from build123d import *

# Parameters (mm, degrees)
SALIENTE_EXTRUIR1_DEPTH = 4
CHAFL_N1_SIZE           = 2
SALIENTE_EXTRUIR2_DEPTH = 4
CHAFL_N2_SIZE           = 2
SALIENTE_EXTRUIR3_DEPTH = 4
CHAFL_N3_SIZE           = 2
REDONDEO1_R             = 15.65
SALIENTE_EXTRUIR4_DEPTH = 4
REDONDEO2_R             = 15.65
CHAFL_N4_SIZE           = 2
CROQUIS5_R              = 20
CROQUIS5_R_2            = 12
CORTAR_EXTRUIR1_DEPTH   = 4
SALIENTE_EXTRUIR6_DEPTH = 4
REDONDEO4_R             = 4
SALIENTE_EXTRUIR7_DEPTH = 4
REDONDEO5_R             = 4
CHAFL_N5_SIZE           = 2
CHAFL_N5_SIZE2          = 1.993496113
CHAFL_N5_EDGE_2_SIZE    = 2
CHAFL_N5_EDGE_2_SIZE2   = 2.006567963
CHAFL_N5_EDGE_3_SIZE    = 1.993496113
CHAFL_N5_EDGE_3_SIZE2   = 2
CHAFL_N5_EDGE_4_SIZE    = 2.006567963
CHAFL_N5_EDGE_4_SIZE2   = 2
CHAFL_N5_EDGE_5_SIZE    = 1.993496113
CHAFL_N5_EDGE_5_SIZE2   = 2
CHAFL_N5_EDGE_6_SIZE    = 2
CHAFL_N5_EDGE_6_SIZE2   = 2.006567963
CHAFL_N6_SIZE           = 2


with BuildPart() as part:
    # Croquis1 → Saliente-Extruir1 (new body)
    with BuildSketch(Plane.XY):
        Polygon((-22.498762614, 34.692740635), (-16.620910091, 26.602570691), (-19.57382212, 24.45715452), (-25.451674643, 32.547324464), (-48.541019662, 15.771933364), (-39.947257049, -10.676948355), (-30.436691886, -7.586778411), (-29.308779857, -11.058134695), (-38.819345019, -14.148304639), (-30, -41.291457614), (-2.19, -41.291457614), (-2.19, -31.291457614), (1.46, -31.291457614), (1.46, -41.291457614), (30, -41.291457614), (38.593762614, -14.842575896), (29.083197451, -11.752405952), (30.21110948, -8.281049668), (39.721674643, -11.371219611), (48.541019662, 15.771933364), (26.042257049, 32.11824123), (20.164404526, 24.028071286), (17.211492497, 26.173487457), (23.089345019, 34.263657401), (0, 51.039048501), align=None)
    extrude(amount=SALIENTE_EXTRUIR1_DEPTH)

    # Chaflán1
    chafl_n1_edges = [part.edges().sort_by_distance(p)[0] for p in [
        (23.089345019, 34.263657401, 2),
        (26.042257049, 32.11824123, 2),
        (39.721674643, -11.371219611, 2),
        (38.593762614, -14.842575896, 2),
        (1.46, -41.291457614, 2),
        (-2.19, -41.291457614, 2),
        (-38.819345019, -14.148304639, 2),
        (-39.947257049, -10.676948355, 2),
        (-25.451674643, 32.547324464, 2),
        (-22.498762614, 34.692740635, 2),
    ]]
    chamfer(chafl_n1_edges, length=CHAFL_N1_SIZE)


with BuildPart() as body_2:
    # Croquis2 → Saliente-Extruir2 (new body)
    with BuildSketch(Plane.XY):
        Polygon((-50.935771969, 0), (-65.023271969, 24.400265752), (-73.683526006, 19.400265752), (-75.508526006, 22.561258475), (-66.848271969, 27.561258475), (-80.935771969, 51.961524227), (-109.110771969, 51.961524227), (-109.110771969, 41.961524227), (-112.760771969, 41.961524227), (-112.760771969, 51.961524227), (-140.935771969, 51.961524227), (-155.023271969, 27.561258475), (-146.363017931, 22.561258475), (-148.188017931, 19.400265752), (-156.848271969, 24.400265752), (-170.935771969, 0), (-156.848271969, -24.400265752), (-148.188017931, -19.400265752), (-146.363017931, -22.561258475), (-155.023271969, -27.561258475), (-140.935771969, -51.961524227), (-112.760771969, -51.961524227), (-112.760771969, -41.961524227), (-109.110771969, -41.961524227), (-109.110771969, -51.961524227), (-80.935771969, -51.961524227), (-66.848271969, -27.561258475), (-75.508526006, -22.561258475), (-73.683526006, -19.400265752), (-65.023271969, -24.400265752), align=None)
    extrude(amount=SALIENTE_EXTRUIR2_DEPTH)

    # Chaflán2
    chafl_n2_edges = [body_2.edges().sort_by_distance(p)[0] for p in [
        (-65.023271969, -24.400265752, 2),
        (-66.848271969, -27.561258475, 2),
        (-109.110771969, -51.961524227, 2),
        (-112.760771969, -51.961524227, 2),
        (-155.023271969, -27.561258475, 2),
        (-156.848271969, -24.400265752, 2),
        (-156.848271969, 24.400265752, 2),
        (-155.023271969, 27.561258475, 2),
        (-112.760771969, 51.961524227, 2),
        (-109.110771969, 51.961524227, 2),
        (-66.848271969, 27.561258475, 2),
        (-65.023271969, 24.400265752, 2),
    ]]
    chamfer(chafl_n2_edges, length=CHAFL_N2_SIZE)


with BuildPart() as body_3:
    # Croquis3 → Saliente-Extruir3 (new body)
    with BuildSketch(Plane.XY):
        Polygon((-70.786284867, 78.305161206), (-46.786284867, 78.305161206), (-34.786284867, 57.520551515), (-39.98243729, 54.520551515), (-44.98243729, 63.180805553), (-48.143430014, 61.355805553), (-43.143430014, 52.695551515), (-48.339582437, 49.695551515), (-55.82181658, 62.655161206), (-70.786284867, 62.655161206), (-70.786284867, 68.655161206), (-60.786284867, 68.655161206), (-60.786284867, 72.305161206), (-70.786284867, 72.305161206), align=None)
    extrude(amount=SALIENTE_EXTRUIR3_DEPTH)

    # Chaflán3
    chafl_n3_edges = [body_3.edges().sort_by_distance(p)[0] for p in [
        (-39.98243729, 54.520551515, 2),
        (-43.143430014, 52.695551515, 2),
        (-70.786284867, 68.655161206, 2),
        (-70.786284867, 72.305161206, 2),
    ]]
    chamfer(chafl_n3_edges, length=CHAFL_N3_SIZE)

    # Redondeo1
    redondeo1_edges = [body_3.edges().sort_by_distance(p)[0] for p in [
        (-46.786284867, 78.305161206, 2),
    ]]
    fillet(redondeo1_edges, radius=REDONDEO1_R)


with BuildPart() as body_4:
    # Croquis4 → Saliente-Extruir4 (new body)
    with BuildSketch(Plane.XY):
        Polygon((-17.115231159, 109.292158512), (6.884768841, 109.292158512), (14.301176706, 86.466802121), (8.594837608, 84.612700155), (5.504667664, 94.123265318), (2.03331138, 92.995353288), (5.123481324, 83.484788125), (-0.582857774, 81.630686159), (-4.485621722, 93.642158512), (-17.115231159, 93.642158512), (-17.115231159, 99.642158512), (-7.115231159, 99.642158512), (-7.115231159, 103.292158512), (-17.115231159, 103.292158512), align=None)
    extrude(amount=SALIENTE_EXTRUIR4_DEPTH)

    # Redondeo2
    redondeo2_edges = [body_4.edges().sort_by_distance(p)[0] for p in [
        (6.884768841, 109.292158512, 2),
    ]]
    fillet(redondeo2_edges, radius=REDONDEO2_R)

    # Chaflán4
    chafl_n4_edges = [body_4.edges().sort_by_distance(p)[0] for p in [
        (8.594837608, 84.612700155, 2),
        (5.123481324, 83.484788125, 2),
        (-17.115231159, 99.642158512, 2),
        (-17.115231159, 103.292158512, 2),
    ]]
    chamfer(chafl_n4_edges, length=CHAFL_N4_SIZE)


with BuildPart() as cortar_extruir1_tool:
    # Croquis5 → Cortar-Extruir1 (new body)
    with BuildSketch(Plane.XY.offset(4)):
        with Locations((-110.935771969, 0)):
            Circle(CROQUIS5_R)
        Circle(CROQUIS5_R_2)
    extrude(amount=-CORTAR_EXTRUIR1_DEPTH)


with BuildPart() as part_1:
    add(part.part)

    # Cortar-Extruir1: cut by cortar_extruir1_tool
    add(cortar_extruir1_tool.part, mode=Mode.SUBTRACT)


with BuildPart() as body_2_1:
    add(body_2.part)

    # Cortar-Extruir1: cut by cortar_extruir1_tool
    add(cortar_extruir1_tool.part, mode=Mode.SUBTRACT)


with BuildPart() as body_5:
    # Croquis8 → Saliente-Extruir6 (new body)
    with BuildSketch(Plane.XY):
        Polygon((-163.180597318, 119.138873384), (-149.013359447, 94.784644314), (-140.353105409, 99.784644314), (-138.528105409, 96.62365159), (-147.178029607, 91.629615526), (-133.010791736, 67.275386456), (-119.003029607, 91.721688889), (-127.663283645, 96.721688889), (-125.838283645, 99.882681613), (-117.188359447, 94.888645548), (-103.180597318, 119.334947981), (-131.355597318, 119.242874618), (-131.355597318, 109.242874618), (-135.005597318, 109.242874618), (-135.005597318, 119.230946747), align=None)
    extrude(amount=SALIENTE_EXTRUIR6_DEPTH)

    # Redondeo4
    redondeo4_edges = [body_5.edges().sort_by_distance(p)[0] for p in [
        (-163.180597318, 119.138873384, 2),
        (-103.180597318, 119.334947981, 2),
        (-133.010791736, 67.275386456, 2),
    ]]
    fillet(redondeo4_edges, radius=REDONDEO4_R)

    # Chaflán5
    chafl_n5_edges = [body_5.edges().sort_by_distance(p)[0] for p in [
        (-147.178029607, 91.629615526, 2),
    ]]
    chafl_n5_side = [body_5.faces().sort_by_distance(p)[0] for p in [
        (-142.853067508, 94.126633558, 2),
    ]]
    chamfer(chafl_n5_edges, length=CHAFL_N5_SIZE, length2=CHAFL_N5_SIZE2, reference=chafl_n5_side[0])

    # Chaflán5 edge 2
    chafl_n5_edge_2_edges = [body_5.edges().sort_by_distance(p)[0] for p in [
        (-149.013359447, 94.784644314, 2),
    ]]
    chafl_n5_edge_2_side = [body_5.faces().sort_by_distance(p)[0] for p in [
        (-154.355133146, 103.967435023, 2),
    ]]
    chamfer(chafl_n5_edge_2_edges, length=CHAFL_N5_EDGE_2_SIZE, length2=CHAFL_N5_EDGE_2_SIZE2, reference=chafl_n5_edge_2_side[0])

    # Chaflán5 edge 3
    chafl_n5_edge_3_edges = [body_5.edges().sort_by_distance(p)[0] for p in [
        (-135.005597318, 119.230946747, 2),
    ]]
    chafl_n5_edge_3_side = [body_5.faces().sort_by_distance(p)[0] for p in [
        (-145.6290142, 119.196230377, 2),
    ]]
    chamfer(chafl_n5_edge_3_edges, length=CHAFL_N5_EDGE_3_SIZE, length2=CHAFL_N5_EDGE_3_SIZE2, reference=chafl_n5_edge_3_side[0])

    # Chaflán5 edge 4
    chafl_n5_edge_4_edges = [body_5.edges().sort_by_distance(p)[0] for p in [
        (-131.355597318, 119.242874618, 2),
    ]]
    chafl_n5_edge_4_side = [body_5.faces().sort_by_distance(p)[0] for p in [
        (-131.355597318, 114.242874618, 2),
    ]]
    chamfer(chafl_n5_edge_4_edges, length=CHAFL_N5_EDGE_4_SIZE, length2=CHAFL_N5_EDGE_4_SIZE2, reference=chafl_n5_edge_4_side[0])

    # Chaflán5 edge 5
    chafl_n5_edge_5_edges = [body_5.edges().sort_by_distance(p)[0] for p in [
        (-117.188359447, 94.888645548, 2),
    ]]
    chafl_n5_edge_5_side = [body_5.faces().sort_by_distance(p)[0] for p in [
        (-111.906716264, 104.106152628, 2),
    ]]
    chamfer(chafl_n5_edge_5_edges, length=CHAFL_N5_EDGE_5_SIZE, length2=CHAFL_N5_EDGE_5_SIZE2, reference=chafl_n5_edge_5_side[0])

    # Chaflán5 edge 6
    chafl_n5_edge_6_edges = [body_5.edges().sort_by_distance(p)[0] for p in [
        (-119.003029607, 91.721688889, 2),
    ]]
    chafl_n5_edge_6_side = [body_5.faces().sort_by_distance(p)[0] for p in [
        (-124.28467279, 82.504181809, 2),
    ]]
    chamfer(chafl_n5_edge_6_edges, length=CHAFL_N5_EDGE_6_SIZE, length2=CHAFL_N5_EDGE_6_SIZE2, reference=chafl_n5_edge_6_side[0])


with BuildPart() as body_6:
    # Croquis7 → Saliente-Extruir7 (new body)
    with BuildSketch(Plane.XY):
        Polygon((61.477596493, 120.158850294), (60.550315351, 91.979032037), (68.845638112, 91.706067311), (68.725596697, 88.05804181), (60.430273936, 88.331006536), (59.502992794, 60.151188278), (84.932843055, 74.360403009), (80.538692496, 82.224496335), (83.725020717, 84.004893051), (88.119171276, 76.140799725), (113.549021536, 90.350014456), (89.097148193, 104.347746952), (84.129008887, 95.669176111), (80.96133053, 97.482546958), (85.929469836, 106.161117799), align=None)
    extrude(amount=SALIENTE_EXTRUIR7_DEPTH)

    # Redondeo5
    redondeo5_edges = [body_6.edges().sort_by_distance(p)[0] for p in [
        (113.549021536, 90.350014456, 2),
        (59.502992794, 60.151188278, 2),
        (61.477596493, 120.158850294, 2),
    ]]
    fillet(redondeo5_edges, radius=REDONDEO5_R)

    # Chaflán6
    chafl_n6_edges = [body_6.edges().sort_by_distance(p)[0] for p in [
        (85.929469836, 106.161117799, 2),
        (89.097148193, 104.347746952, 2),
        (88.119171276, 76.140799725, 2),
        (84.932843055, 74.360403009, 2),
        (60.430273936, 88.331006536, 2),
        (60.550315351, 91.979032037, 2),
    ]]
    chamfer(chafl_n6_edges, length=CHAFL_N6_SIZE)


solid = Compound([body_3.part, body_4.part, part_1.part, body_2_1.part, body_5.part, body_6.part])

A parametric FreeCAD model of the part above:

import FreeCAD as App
import Part
import Sketcher
from FreeCAD import Vector
Q = App.Units.Quantity


def edges_at(feature, points):
    """Names of the edges that pass closest to the given points."""
    edges = feature.Shape.Edges
    near = lambda p: min(range(len(edges)), key=lambda i: edges[i].distToShape(Part.Vertex(*p))[0])
    return sorted({f"Edge{near(p) + 1}" for p in points})


def add_polygon(sketch, points):
    """Adds a closed chain of lines whose ends are joined by coincident constraints."""
    first, n = sketch.GeometryCount, len(points)
    for a, b in zip(points, points[1:] + points[:1]):
        sketch.addGeometry(Part.LineSegment(App.Vector(*a, 0), App.Vector(*b, 0)), False)
    for i in range(n):
        sketch.addConstraint(Sketcher.Constraint("Coincident", first + i, 2, first + (i + 1) % n, 1))

doc = App.newDocument("Part")
body = doc.addObject("PartDesign::Body", "Body")

# Sketch on XY plane
sketch1 = body.newObject("Sketcher::SketchObject", "Sketch")
sketch1.AttachmentSupport = (doc.getObject("XY_Plane"), [""])
sketch1.MapMode = "FlatFace"
add_polygon(sketch1, [(-22.5, 34.7), (-16.6, 26.6), (-19.6, 24.5), (-25.5, 32.5), (-48.5, 15.8), (-39.9, -10.7), (-30.4, -7.6), (-29.3, -11.1), (-38.8, -14.1), (-30, -41.3), (-2.2, -41.3), (-2.2, -31.3), (1.5, -31.3), (1.5, -41.3), (30, -41.3), (38.6, -14.8), (29.1, -11.8), (30.2, -8.3), (39.7, -11.4), (48.5, 15.8), (26, 32.1), (20.2, 24), (17.2, 26.2), (23.1, 34.3), (0, 51)])  # lines 0-24
sketch1.addConstraint([
    Sketcher.Constraint("Horizontal", 9),
    Sketcher.Constraint("Vertical", 10),
    Sketcher.Constraint("Horizontal", 11),
    Sketcher.Constraint("Vertical", 12),
    Sketcher.Constraint("Horizontal", 13),
    Sketcher.Constraint("Symmetric", 8, 2, 13, 2, -2),
    Sketcher.Constraint("Symmetric", 3, 2, 18, 2, -2),
    Sketcher.Constraint("PointOnObject", 23, 2, -2),
    Sketcher.Constraint("Perpendicular", 0, 1),
    Sketcher.Constraint("Perpendicular", 1, 2),
    Sketcher.Constraint("Perpendicular", 2, 3),
    Sketcher.Constraint("Perpendicular", 4, 5),
    Sketcher.Constraint("Perpendicular", 5, 6),
    Sketcher.Constraint("Perpendicular", 6, 7),
    Sketcher.Constraint("Perpendicular", 7, 8),
    Sketcher.Constraint("Perpendicular", 14, 15),
    Sketcher.Constraint("Perpendicular", 15, 16),
    Sketcher.Constraint("Perpendicular", 16, 17),
    Sketcher.Constraint("Perpendicular", 17, 18),
    Sketcher.Constraint("Perpendicular", 19, 20),
    Sketcher.Constraint("Perpendicular", 20, 21),
    Sketcher.Constraint("Perpendicular", 21, 22),
    Sketcher.Constraint("Perpendicular", 22, 23),
    Sketcher.Constraint("Parallel", 3, 24),
    Sketcher.Constraint("Equal", 0, 2),
    Sketcher.Constraint("Equal", 2, 5),
    Sketcher.Constraint("Equal", 1, 6),
    Sketcher.Constraint("Equal", 5, 7),
    Sketcher.Constraint("Equal", 3, 8),
    Sketcher.Constraint("Equal", 4, 14),
    Sketcher.Constraint("Equal", 7, 15),
    Sketcher.Constraint("Equal", 6, 16),
    Sketcher.Constraint("Equal", 15, 17),
    Sketcher.Constraint("Equal", 14, 19),
    Sketcher.Constraint("Equal", 17, 20),
    Sketcher.Constraint("Equal", 16, 21),
    Sketcher.Constraint("Equal", 20, 22),
    Sketcher.Constraint("Equal", 18, 23),
    Sketcher.Constraint("DistanceY", 10, 1, 10, 2, 10.0),
    Sketcher.Constraint("Angle", 0, Q("-54 deg")),
    Sketcher.Constraint("Angle", 4, Q("-72 deg")),
    Sketcher.Constraint("Distance", 0, 10.0),
    Sketcher.Constraint("DistanceX", 8, 2, -1, 1, 30.0),
    Sketcher.Constraint("DistanceX", 9, 1, 9, 2, 27.81),
    Sketcher.Constraint("DistanceX", 11, 1, 11, 2, 3.65),
    Sketcher.Constraint("Distance", 1, 3.65),
    Sketcher.Constraint("Distance", 3, 28.54),
    Sketcher.Constraint("DistanceY", -1, 1, 0, 2, 26.602571),
])
pad1 = body.newObject("PartDesign::Pad", "Pad")
pad1.Profile = sketch1
pad1.Length = 4
doc.recompute()

chamfer = body.newObject("PartDesign::Chamfer", "Chamfer")
chamfer.Base = (pad1, edges_at(pad1, [
    (23.089, 34.264, 2),
    (26.042, 32.118, 2),
    (39.722, -11.371, 2),
    (38.594, -14.843, 2),
    (1.46, -41.291, 2),
    (-2.19, -41.291, 2),
    (-38.819, -14.148, 2),
    (-39.947, -10.677, 2),
    (-25.452, 32.547, 2),
    (-22.499, 34.693, 2),
]))
chamfer.Size = 2
body2 = doc.addObject("PartDesign::Body", "Body001")

# Sketch on XY plane
sketch2 = body2.newObject("Sketcher::SketchObject", "Sketch001")
sketch2.AttachmentSupport = (doc.getObject("XY_Plane001"), [""])
sketch2.MapMode = "FlatFace"
add_polygon(sketch2, [(-50.9, 0), (-65, 24.4), (-73.7, 19.4), (-75.5, 22.6), (-66.8, 27.6), (-80.9, 52), (-109.1, 52), (-109.1, 42), (-112.8, 42), (-112.8, 52), (-140.9, 52), (-155, 27.6), (-146.4, 22.6), (-148.2, 19.4), (-156.8, 24.4), (-170.9, 0), (-156.8, -24.4), (-148.2, -19.4), (-146.4, -22.6), (-155, -27.6), (-140.9, -52), (-112.8, -52), (-112.8, -42), (-109.1, -42), (-109.1, -52), (-80.9, -52), (-66.8, -27.6), (-75.5, -22.6), (-73.7, -19.4), (-65, -24.4)])  # lines 0-29
sketch2.addConstraint([
    Sketcher.Constraint("Horizontal", 5),
    Sketcher.Constraint("Vertical", 6),
    Sketcher.Constraint("Horizontal", 7),
    Sketcher.Constraint("Vertical", 8),
    Sketcher.Constraint("Horizontal", 9),
    Sketcher.Constraint("Horizontal", 20),
    Sketcher.Constraint("Vertical", 21),
    Sketcher.Constraint("Horizontal", 22),
    Sketcher.Constraint("Vertical", 23),
    Sketcher.Constraint("Horizontal", 24),
    Sketcher.Constraint("Symmetric", 13, 2, 15, 2, -1),
    Sketcher.Constraint("Symmetric", 12, 2, 16, 2, -1),
    Sketcher.Constraint("Symmetric", 11, 2, 17, 2, -1),
    Sketcher.Constraint("Symmetric", 10, 2, 18, 2, -1),
    Sketcher.Constraint("Symmetric", 9, 2, 19, 2, -1),
    Sketcher.Constraint("Symmetric", 7, 2, 21, 2, -1),
    Sketcher.Constraint("Symmetric", 5, 2, 23, 2, -1),
    Sketcher.Constraint("Symmetric", 3, 2, 25, 2, -1),
    Sketcher.Constraint("Symmetric", 2, 2, 26, 2, -1),
    Sketcher.Constraint("Symmetric", 1, 2, 27, 2, -1),
    Sketcher.Constraint("Symmetric", 0, 2, 28, 2, -1),
    Sketcher.Constraint("PointOnObject", 14, 2, -1),
    Sketcher.Constraint("PointOnObject", 29, 2, -1),
    Sketcher.Constraint("Perpendicular", 0, 1),
    Sketcher.Constraint("Perpendicular", 1, 2),
    Sketcher.Constraint("Perpendicular", 2, 3),
    Sketcher.Constraint("Perpendicular", 3, 4),
    Sketcher.Constraint("Perpendicular", 10, 11),
    Sketcher.Constraint("Perpendicular", 11, 12),
    Sketcher.Constraint("Perpendicular", 12, 13),
    Sketcher.Constraint("Perpendicular", 13, 14),
    Sketcher.Constraint("Parallel", 4, 15),
    Sketcher.Constraint("Parallel", 14, 25),
    Sketcher.Constraint("Horizontal", 5, 2, 8, 2),
    Sketcher.Constraint("Horizontal", 3, 2, 10, 2),
    Sketcher.Constraint("Horizontal", 2, 2, 11, 2),
    Sketcher.Constraint("Horizontal", 1, 2, 12, 2),
    Sketcher.Constraint("Horizontal", 0, 2, 13, 2),
    Sketcher.Constraint("Equal", 5, 9),
    Sketcher.Constraint("Equal", 1, 3),
    Sketcher.Constraint("Equal", 0, 4),
    Sketcher.Constraint("DistanceY", 6, 2, 6, 1, 10.0),
    Sketcher.Constraint("Angle", 0, Q("120 deg")),
    Sketcher.Constraint("Distance", 1, 10.0),
    Sketcher.Constraint("DistanceX", 9, 2, 4, 2, 60.0),
    Sketcher.Constraint("DistanceX", 14, 2, 9, 2, 30.0),
    Sketcher.Constraint("DistanceX", 7, 2, 7, 1, 3.65),
    Sketcher.Constraint("Distance", 2, 3.65),
    Sketcher.Constraint("DistanceX", 0, 2, -1, 1, 65.023272),
])
pad2 = body2.newObject("PartDesign::Pad", "Pad001")
pad2.Profile = sketch2
pad2.Length = 4
doc.recompute()

chamfer2 = body2.newObject("PartDesign::Chamfer", "Chamfer001")
chamfer2.Base = (pad2, edges_at(pad2, [
    (-65.023, -24.4, 2),
    (-66.848, -27.561, 2),
    (-109.111, -51.962, 2),
    (-112.761, -51.962, 2),
    (-155.023, -27.561, 2),
    (-156.848, -24.4, 2),
    (-156.848, 24.4, 2),
    (-155.023, 27.561, 2),
    (-112.761, 51.962, 2),
    (-109.111, 51.962, 2),
    (-66.848, 27.561, 2),
    (-65.023, 24.4, 2),
]))
chamfer2.Size = 2
body3 = doc.addObject("PartDesign::Body", "Body002")

# Sketch on XY plane
sketch3 = body3.newObject("Sketcher::SketchObject", "Sketch002")
sketch3.AttachmentSupport = (doc.getObject("XY_Plane002"), [""])
sketch3.MapMode = "FlatFace"
add_polygon(sketch3, [(-46.8, 78.3), (-70.8, 78.3), (-70.8, 72.3), (-60.8, 72.3), (-60.8, 68.7), (-70.8, 68.7), (-70.8, 62.7), (-55.8, 62.7), (-48.3, 49.7), (-43.1, 52.7), (-48.1, 61.4), (-45, 63.2), (-40, 54.5), (-34.8, 57.5)])  # lines 0-13
sketch3.addConstraint([
    Sketcher.Constraint("Horizontal", 0),
    Sketcher.Constraint("Vertical", 1),
    Sketcher.Constraint("Horizontal", 2),
    Sketcher.Constraint("Vertical", 3),
    Sketcher.Constraint("Horizontal", 4),
    Sketcher.Constraint("Vertical", 5),
    Sketcher.Constraint("Horizontal", 6),
    Sketcher.Constraint("Perpendicular", 7, 8),
    Sketcher.Constraint("Perpendicular", 8, 9),
    Sketcher.Constraint("Perpendicular", 9, 10),
    Sketcher.Constraint("Perpendicular", 10, 11),
    Sketcher.Constraint("Perpendicular", 11, 12),
    Sketcher.Constraint("Perpendicular", 12, 13),
    Sketcher.Constraint("Vertical", 1, 2, 4, 2),
    Sketcher.Constraint("Equal", 1, 5),
    Sketcher.Constraint("Equal", 9, 11),
    Sketcher.Constraint("Equal", 8, 12),
    Sketcher.Constraint("DistanceX", 0, 2, 0, 1, 24.0),
    Sketcher.Constraint("DistanceX", 2, 1, 2, 2, 10.0),
    Sketcher.Constraint("DistanceY", 1, 2, 1, 1, 6.0),
    Sketcher.Constraint("Angle", 7, Q("-60 deg")),
    Sketcher.Constraint("Distance", 8, 6.0),
    Sketcher.Constraint("Distance", 9, 10.0),
    Sketcher.Constraint("Distance", 13, 24.0),
    Sketcher.Constraint("DistanceY", 3, 2, 3, 1, 3.65),
    Sketcher.Constraint("Distance", 10, 3.65),
    Sketcher.Constraint("DistanceY", -1, 1, 0, 2, 78.305161),
    Sketcher.Constraint("DistanceX", 8, 2, -1, 1, 43.14343),
])
pad3 = body3.newObject("PartDesign::Pad", "Pad002")
pad3.Profile = sketch3
pad3.Length = 4
doc.recompute()

chamfer3 = body3.newObject("PartDesign::Chamfer", "Chamfer002")
chamfer3.Base = (pad3, edges_at(pad3, [
    (-39.982, 54.521, 2),
    (-43.143, 52.696, 2),
    (-70.786, 68.655, 2),
    (-70.786, 72.305, 2),
]))
chamfer3.Size = 2
doc.recompute()

fillet = body3.newObject("PartDesign::Fillet", "Fillet")
fillet.Base = (chamfer3, edges_at(chamfer3, [(-46.786, 78.305, 2)]))
fillet.Radius = 15.65
body4 = doc.addObject("PartDesign::Body", "Body003")

# Sketch on XY plane
sketch4 = body4.newObject("Sketcher::SketchObject", "Sketch003")
sketch4.AttachmentSupport = (doc.getObject("XY_Plane003"), [""])
sketch4.MapMode = "FlatFace"
add_polygon(sketch4, [(6.9, 109.3), (-17.1, 109.3), (-17.1, 103.3), (-7.1, 103.3), (-7.1, 99.6), (-17.1, 99.6), (-17.1, 93.6), (-4.5, 93.6), (-0.6, 81.6), (5.1, 83.5), (2, 93), (5.5, 94.1), (8.6, 84.6), (14.3, 86.5)])  # lines 0-13
sketch4.addConstraint([
    Sketcher.Constraint("Horizontal", 0),
    Sketcher.Constraint("Vertical", 1),
    Sketcher.Constraint("Horizontal", 2),
    Sketcher.Constraint("Vertical", 3),
    Sketcher.Constraint("Horizontal", 4),
    Sketcher.Constraint("Vertical", 5),
    Sketcher.Constraint("Horizontal", 6),
    Sketcher.Constraint("Perpendicular", 7, 8),
    Sketcher.Constraint("Perpendicular", 8, 9),
    Sketcher.Constraint("Perpendicular", 9, 10),
    Sketcher.Constraint("Perpendicular", 10, 11),
    Sketcher.Constraint("Perpendicular", 11, 12),
    Sketcher.Constraint("Perpendicular", 12, 13),
    Sketcher.Constraint("Vertical", 1, 2, 4, 2),
    Sketcher.Constraint("Equal", 1, 5),
    Sketcher.Constraint("Equal", 9, 11),
    Sketcher.Constraint("Equal", 8, 12),
    Sketcher.Constraint("DistanceX", 0, 2, 0, 1, 24.0),
    Sketcher.Constraint("DistanceX", 2, 1, 2, 2, 10.0),
    Sketcher.Constraint("DistanceY", 1, 2, 1, 1, 6.0),
    Sketcher.Constraint("Angle", 7, Q("-72 deg")),
    Sketcher.Constraint("Distance", 8, 6.0),
    Sketcher.Constraint("Distance", 9, 10.0),
    Sketcher.Constraint("Distance", 13, 24.0),
    Sketcher.Constraint("DistanceY", 3, 2, 3, 1, 3.65),
    Sketcher.Constraint("Distance", 10, 3.65),
    Sketcher.Constraint("DistanceY", -1, 1, 11, 2, 84.6127),
    Sketcher.Constraint("DistanceX", 0, 2, -1, 1, 17.115231),
])
pad4 = body4.newObject("PartDesign::Pad", "Pad003")
pad4.Profile = sketch4
pad4.Length = 4
doc.recompute()

fillet2 = body4.newObject("PartDesign::Fillet", "Fillet001")
fillet2.Base = (pad4, edges_at(pad4, [(6.885, 109.292, 2)]))
fillet2.Radius = 15.65
doc.recompute()

chamfer4 = body4.newObject("PartDesign::Chamfer", "Chamfer003")
chamfer4.Base = (fillet2, edges_at(fillet2, [
    (8.595, 84.613, 2),
    (5.123, 83.485, 2),
    (-17.115, 99.642, 2),
    (-17.115, 103.292, 2),
]))
chamfer4.Size = 2
body5 = doc.addObject("PartDesign::Body", "Body004")
body5.AllowCompound = True

# Sketch on XY plane
sketch5 = body5.newObject("Sketcher::SketchObject", "Sketch004")
sketch5.AttachmentSupport = (doc.getObject("XY_Plane004"), [""])
sketch5.MapMode = "FlatFace"
sketch5.AttachmentOffset = App.Placement(Vector(0, 0, 4), App.Rotation())
sketch5.addGeometry([
    Part.Circle(Vector(-111, 0, 0), Vector(0, 0, 1), 20),
    Part.Circle(Vector(0, 0, 0), Vector(0, 0, 1), 12),
], False)
sketch5.addConstraint([
    Sketcher.Constraint("Coincident", 1, 3, -1, 1),
    Sketcher.Constraint("PointOnObject", 0, 3, -1),
    Sketcher.Constraint("Diameter", 0, 40.0),
    Sketcher.Constraint("Diameter", 1, 24.0),
    Sketcher.Constraint("DistanceX", 0, 3, -1, 1, 110.935772),
])
pad5 = body5.newObject("PartDesign::Pad", "Pad004")
pad5.Profile = sketch5
pad5.Length = 4
pad5.Reversed = True
doc.recompute()

body6 = doc.addObject("PartDesign::Body", "Body005")
body6.BaseFeature = body5
boolean = body.newObject("PartDesign::Boolean", "Boolean")
boolean.Type = "Cut"
boolean.addObjects([body6])
doc.recompute()

boolean2 = body2.newObject("PartDesign::Boolean", "Boolean001")
boolean2.Type = "Cut"
boolean2.addObjects([body5])
body7 = doc.addObject("PartDesign::Body", "Body006")

# Sketch on XY plane
sketch6 = body7.newObject("Sketcher::SketchObject", "Sketch005")
sketch6.AttachmentSupport = (doc.getObject("XY_Plane006"), [""])
sketch6.MapMode = "FlatFace"
add_polygon(sketch6, [(-163.2, 119.1), (-149, 94.8), (-140.4, 99.8), (-138.5, 96.6), (-147.2, 91.6), (-133, 67.3), (-119, 91.7), (-127.7, 96.7), (-125.8, 99.9), (-117.2, 94.9), (-103.2, 119.3), (-131.4, 119.2), (-131.4, 109.2), (-135, 109.2), (-135, 119.2)])  # lines 0-14
sketch6.addConstraint([
    Sketcher.Constraint("Vertical", 11),
    Sketcher.Constraint("Horizontal", 12),
    Sketcher.Constraint("Vertical", 13),
    Sketcher.Constraint("Perpendicular", 1, 2),
    Sketcher.Constraint("Perpendicular", 2, 3),
    Sketcher.Constraint("Parallel", 0, 4),
    Sketcher.Constraint("Perpendicular", 6, 7),
    Sketcher.Constraint("Perpendicular", 7, 8),
    Sketcher.Constraint("Parallel", 5, 9),
    Sketcher.Constraint("Parallel", 10, 14),
    Sketcher.Constraint("Equal", 0, 4),
    Sketcher.Constraint("Equal", 4, 5),
    Sketcher.Constraint("Equal", 1, 6),
    Sketcher.Constraint("Equal", 2, 7),
    Sketcher.Constraint("Equal", 3, 8),
    Sketcher.Constraint("Equal", 5, 9),
    Sketcher.Constraint("Equal", 9, 10),
    Sketcher.Constraint("Equal", 10, 14),
    Sketcher.Constraint("DistanceY", 11, 2, 11, 1, 10.0),
    Sketcher.Constraint("Angle", 1, Q("30 deg")),
    Sketcher.Constraint("Angle", 6, Q("150 deg")),
    Sketcher.Constraint("Distance", 1, 10.0),
    Sketcher.Constraint("DistanceX", 12, 2, 12, 1, 3.65),
    Sketcher.Constraint("Distance", 2, 3.65),
    Sketcher.Constraint("DistanceX", 3, 2, 5, 2, 28.175),
    Sketcher.Constraint("DistanceY", 8, 2, 1, 2, 4.895999),
    Sketcher.Constraint("DistanceY", 12, 2, 14, 2, 9.895999),
    Sketcher.Constraint("DistanceY", 13, 1, 13, 2, 9.988072),
    Sketcher.Constraint("DistanceX", 0, 2, -1, 1, 149.013359),
    Sketcher.Constraint("DistanceY", -1, 1, 2, 2, 96.623652),
])
pad6 = body7.newObject("PartDesign::Pad", "Pad005")
pad6.Profile = sketch6
pad6.Length = 4
doc.recompute()

fillet3 = body7.newObject("PartDesign::Fillet", "Fillet002")
fillet3.Base = (pad6, edges_at(pad6, [(-163.181, 119.139, 2), (-103.181, 119.335, 2), (-133.011, 67.275, 2)]))
fillet3.Radius = 4
doc.recompute()

chamfer5 = body7.newObject("PartDesign::Chamfer", "Chamfer004")
chamfer5.Base = (fillet3, edges_at(fillet3, [(-147.178, 91.63, 2)]))
chamfer5.ChamferType = "Two distances"
chamfer5.Size = 2
chamfer5.Size2 = 1.993496
doc.recompute()

chamfer6 = body7.newObject("PartDesign::Chamfer", "Chamfer005")
chamfer6.Base = (chamfer5, edges_at(chamfer5, [(-149.013, 94.785, 2)]))
chamfer6.ChamferType = "Two distances"
chamfer6.Size = 2
chamfer6.Size2 = 2.006568
doc.recompute()

chamfer7 = body7.newObject("PartDesign::Chamfer", "Chamfer006")
chamfer7.Base = (chamfer6, edges_at(chamfer6, [(-135.006, 119.231, 2)]))
chamfer7.ChamferType = "Two distances"
chamfer7.Size = 1.993496
chamfer7.Size2 = 2
doc.recompute()

chamfer8 = body7.newObject("PartDesign::Chamfer", "Chamfer007")
chamfer8.Base = (chamfer7, edges_at(chamfer7, [(-131.356, 119.243, 2)]))
chamfer8.ChamferType = "Two distances"
chamfer8.Size = 2.006568
chamfer8.Size2 = 2
doc.recompute()

chamfer9 = body7.newObject("PartDesign::Chamfer", "Chamfer008")
chamfer9.Base = (chamfer8, edges_at(chamfer8, [(-117.188, 94.889, 2)]))
chamfer9.ChamferType = "Two distances"
chamfer9.Size = 1.993496
chamfer9.Size2 = 2
doc.recompute()

chamfer10 = body7.newObject("PartDesign::Chamfer", "Chamfer009")
chamfer10.Base = (chamfer9, edges_at(chamfer9, [(-119.003, 91.722, 2)]))
chamfer10.ChamferType = "Two distances"
chamfer10.Size = 2
chamfer10.Size2 = 2.006568
body8 = doc.addObject("PartDesign::Body", "Body007")

# Sketch on XY plane
sketch7 = body8.newObject("Sketcher::SketchObject", "Sketch006")
sketch7.AttachmentSupport = (doc.getObject("XY_Plane007"), [""])
sketch7.MapMode = "FlatFace"
add_polygon(sketch7, [(61.5, 120.2), (60.6, 92), (68.8, 91.7), (68.7, 88.1), (60.4, 88.3), (59.5, 60.2), (84.9, 74.4), (80.5, 82.2), (83.7, 84), (88.1, 76.1), (113.5, 90.4), (89.1, 104.3), (84.1, 95.7), (81, 97.5), (85.9, 106.2)])  # lines 0-14
sketch7.addConstraint([
    Sketcher.Constraint("Perpendicular", 0, 1),
    Sketcher.Constraint("Perpendicular", 1, 2),
    Sketcher.Constraint("Perpendicular", 2, 3),
    Sketcher.Constraint("Perpendicular", 3, 4),
    Sketcher.Constraint("Perpendicular", 5, 6),
    Sketcher.Constraint("Perpendicular", 6, 7),
    Sketcher.Constraint("Perpendicular", 7, 8),
    Sketcher.Constraint("Perpendicular", 8, 9),
    Sketcher.Constraint("Perpendicular", 10, 11),
    Sketcher.Constraint("Perpendicular", 11, 12),
    Sketcher.Constraint("Perpendicular", 12, 13),
    Sketcher.Constraint("Perpendicular", 13, 14),
    Sketcher.Constraint("Equal", 1, 3),
    Sketcher.Constraint("Equal", 0, 4),
    Sketcher.Constraint("Equal", 2, 7),
    Sketcher.Constraint("Equal", 6, 8),
    Sketcher.Constraint("Equal", 5, 9),
    Sketcher.Constraint("Equal", 7, 12),
    Sketcher.Constraint("Equal", 11, 13),
    Sketcher.Constraint("Equal", 10, 14),
    Sketcher.Constraint("Distance", 11, 10.0),
    Sketcher.Constraint("Distance", 2, 3.65),
    Sketcher.Constraint("Distance", 10, 28.175),
    Sketcher.Constraint("DistanceX", 7, 2, 9, 2, 29.824001),
    Sketcher.Constraint("DistanceY", -1, 1, 8, 2, 76.1408),
    Sketcher.Constraint("DistanceY", 12, 2, 10, 2, 6.8652),
    Sketcher.Constraint("Distance", 0, 28.195071),
    Sketcher.Constraint("Distance", 5, 29.13038),
    Sketcher.Constraint("DistanceX", -1, 1, 1, 2, 68.845638),
    Sketcher.Constraint("DistanceY", -1, 1, 2, 2, 88.058042),
])
pad7 = body8.newObject("PartDesign::Pad", "Pad006")
pad7.Profile = sketch7
pad7.Length = 4
doc.recompute()

fillet4 = body8.newObject("PartDesign::Fillet", "Fillet003")
fillet4.Base = (pad7, edges_at(pad7, [(113.549, 90.35, 2), (59.503, 60.151, 2), (61.478, 120.159, 2)]))
fillet4.Radius = 4
doc.recompute()

chamfer11 = body8.newObject("PartDesign::Chamfer", "Chamfer010")
chamfer11.Base = (fillet4, edges_at(fillet4, [
    (85.929, 106.161, 2),
    (89.097, 104.348, 2),
    (88.119, 76.141, 2),
    (84.933, 74.36, 2),
    (60.43, 88.331, 2),
    (60.55, 91.979, 2),
]))
chamfer11.Size = 2

doc.recompute()
